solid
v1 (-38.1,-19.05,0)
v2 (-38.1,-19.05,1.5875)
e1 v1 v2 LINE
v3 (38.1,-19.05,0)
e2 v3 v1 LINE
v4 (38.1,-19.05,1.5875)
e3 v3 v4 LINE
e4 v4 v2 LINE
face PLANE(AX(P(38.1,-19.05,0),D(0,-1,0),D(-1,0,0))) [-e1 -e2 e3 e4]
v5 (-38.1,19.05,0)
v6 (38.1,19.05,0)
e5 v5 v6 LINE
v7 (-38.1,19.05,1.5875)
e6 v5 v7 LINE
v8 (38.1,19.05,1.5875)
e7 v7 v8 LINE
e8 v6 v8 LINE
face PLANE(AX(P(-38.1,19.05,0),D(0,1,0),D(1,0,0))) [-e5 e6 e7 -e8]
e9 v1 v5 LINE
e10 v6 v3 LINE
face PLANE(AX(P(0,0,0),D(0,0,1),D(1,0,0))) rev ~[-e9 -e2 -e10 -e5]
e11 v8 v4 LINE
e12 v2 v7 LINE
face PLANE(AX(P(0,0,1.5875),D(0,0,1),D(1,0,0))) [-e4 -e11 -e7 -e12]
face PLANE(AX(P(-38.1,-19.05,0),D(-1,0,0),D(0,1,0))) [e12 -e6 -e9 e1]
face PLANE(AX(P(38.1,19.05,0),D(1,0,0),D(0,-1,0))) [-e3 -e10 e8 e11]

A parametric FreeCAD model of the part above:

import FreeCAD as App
import Part
import Sketcher

V = App.Vector
Q = App.Units.Quantity

doc = App.newDocument("Part")
body = doc.addObject("PartDesign::Body", "Body")

sketch1 = body.newObject("Sketcher::SketchObject", "Sketch")
sketch1.AttachmentSupport = (doc.getObject("XY_Plane"), [""])
sketch1.MapMode = "FlatFace"
sketch1.addGeometry(Part.LineSegment(V(38, 19, 0), V(-38, 19, 0)), False)
sketch1.addGeometry(Part.LineSegment(V(-38, 19, 0), V(-38, -19, 0)), False)
sketch1.addGeometry(Part.LineSegment(V(-38, -19, 0), V(38, -19, 0)), False)
sketch1.addGeometry(Part.LineSegment(V(38, -19, 0), V(38, 19, 0)), False)
sketch1.addConstraint(Sketcher.Constraint("Coincident", 0, 2, 1, 1))
sketch1.addConstraint(Sketcher.Constraint("Coincident", 1, 2, 2, 1))
sketch1.addConstraint(Sketcher.Constraint("Coincident", 2, 2, 3, 1))
sketch1.addConstraint(Sketcher.Constraint("Coincident", 3, 2, 0, 1))
sketch1.addConstraint(Sketcher.Constraint("Horizontal", 0))
sketch1.addConstraint(Sketcher.Constraint("Vertical", 1))
sketch1.addConstraint(Sketcher.Constraint("Horizontal", 2))
sketch1.addConstraint(Sketcher.Constraint("Vertical", 3))
sketch1.addConstraint(Sketcher.Constraint("Symmetric", 0, 2, 2, 2, -1, 1))
sketch1.addConstraint(Sketcher.Constraint("DistanceX", 0, 2, 0, 1, Q("3 in")))
sketch1.addConstraint(Sketcher.Constraint("DistanceY", 1, 2, 1, 1, Q("1.5 in")))
pad1 = body.newObject("PartDesign::Pad", "Pad")
pad1.Profile = sketch1
pad1.Length = Q("0.0625 in")

doc.recompute()
